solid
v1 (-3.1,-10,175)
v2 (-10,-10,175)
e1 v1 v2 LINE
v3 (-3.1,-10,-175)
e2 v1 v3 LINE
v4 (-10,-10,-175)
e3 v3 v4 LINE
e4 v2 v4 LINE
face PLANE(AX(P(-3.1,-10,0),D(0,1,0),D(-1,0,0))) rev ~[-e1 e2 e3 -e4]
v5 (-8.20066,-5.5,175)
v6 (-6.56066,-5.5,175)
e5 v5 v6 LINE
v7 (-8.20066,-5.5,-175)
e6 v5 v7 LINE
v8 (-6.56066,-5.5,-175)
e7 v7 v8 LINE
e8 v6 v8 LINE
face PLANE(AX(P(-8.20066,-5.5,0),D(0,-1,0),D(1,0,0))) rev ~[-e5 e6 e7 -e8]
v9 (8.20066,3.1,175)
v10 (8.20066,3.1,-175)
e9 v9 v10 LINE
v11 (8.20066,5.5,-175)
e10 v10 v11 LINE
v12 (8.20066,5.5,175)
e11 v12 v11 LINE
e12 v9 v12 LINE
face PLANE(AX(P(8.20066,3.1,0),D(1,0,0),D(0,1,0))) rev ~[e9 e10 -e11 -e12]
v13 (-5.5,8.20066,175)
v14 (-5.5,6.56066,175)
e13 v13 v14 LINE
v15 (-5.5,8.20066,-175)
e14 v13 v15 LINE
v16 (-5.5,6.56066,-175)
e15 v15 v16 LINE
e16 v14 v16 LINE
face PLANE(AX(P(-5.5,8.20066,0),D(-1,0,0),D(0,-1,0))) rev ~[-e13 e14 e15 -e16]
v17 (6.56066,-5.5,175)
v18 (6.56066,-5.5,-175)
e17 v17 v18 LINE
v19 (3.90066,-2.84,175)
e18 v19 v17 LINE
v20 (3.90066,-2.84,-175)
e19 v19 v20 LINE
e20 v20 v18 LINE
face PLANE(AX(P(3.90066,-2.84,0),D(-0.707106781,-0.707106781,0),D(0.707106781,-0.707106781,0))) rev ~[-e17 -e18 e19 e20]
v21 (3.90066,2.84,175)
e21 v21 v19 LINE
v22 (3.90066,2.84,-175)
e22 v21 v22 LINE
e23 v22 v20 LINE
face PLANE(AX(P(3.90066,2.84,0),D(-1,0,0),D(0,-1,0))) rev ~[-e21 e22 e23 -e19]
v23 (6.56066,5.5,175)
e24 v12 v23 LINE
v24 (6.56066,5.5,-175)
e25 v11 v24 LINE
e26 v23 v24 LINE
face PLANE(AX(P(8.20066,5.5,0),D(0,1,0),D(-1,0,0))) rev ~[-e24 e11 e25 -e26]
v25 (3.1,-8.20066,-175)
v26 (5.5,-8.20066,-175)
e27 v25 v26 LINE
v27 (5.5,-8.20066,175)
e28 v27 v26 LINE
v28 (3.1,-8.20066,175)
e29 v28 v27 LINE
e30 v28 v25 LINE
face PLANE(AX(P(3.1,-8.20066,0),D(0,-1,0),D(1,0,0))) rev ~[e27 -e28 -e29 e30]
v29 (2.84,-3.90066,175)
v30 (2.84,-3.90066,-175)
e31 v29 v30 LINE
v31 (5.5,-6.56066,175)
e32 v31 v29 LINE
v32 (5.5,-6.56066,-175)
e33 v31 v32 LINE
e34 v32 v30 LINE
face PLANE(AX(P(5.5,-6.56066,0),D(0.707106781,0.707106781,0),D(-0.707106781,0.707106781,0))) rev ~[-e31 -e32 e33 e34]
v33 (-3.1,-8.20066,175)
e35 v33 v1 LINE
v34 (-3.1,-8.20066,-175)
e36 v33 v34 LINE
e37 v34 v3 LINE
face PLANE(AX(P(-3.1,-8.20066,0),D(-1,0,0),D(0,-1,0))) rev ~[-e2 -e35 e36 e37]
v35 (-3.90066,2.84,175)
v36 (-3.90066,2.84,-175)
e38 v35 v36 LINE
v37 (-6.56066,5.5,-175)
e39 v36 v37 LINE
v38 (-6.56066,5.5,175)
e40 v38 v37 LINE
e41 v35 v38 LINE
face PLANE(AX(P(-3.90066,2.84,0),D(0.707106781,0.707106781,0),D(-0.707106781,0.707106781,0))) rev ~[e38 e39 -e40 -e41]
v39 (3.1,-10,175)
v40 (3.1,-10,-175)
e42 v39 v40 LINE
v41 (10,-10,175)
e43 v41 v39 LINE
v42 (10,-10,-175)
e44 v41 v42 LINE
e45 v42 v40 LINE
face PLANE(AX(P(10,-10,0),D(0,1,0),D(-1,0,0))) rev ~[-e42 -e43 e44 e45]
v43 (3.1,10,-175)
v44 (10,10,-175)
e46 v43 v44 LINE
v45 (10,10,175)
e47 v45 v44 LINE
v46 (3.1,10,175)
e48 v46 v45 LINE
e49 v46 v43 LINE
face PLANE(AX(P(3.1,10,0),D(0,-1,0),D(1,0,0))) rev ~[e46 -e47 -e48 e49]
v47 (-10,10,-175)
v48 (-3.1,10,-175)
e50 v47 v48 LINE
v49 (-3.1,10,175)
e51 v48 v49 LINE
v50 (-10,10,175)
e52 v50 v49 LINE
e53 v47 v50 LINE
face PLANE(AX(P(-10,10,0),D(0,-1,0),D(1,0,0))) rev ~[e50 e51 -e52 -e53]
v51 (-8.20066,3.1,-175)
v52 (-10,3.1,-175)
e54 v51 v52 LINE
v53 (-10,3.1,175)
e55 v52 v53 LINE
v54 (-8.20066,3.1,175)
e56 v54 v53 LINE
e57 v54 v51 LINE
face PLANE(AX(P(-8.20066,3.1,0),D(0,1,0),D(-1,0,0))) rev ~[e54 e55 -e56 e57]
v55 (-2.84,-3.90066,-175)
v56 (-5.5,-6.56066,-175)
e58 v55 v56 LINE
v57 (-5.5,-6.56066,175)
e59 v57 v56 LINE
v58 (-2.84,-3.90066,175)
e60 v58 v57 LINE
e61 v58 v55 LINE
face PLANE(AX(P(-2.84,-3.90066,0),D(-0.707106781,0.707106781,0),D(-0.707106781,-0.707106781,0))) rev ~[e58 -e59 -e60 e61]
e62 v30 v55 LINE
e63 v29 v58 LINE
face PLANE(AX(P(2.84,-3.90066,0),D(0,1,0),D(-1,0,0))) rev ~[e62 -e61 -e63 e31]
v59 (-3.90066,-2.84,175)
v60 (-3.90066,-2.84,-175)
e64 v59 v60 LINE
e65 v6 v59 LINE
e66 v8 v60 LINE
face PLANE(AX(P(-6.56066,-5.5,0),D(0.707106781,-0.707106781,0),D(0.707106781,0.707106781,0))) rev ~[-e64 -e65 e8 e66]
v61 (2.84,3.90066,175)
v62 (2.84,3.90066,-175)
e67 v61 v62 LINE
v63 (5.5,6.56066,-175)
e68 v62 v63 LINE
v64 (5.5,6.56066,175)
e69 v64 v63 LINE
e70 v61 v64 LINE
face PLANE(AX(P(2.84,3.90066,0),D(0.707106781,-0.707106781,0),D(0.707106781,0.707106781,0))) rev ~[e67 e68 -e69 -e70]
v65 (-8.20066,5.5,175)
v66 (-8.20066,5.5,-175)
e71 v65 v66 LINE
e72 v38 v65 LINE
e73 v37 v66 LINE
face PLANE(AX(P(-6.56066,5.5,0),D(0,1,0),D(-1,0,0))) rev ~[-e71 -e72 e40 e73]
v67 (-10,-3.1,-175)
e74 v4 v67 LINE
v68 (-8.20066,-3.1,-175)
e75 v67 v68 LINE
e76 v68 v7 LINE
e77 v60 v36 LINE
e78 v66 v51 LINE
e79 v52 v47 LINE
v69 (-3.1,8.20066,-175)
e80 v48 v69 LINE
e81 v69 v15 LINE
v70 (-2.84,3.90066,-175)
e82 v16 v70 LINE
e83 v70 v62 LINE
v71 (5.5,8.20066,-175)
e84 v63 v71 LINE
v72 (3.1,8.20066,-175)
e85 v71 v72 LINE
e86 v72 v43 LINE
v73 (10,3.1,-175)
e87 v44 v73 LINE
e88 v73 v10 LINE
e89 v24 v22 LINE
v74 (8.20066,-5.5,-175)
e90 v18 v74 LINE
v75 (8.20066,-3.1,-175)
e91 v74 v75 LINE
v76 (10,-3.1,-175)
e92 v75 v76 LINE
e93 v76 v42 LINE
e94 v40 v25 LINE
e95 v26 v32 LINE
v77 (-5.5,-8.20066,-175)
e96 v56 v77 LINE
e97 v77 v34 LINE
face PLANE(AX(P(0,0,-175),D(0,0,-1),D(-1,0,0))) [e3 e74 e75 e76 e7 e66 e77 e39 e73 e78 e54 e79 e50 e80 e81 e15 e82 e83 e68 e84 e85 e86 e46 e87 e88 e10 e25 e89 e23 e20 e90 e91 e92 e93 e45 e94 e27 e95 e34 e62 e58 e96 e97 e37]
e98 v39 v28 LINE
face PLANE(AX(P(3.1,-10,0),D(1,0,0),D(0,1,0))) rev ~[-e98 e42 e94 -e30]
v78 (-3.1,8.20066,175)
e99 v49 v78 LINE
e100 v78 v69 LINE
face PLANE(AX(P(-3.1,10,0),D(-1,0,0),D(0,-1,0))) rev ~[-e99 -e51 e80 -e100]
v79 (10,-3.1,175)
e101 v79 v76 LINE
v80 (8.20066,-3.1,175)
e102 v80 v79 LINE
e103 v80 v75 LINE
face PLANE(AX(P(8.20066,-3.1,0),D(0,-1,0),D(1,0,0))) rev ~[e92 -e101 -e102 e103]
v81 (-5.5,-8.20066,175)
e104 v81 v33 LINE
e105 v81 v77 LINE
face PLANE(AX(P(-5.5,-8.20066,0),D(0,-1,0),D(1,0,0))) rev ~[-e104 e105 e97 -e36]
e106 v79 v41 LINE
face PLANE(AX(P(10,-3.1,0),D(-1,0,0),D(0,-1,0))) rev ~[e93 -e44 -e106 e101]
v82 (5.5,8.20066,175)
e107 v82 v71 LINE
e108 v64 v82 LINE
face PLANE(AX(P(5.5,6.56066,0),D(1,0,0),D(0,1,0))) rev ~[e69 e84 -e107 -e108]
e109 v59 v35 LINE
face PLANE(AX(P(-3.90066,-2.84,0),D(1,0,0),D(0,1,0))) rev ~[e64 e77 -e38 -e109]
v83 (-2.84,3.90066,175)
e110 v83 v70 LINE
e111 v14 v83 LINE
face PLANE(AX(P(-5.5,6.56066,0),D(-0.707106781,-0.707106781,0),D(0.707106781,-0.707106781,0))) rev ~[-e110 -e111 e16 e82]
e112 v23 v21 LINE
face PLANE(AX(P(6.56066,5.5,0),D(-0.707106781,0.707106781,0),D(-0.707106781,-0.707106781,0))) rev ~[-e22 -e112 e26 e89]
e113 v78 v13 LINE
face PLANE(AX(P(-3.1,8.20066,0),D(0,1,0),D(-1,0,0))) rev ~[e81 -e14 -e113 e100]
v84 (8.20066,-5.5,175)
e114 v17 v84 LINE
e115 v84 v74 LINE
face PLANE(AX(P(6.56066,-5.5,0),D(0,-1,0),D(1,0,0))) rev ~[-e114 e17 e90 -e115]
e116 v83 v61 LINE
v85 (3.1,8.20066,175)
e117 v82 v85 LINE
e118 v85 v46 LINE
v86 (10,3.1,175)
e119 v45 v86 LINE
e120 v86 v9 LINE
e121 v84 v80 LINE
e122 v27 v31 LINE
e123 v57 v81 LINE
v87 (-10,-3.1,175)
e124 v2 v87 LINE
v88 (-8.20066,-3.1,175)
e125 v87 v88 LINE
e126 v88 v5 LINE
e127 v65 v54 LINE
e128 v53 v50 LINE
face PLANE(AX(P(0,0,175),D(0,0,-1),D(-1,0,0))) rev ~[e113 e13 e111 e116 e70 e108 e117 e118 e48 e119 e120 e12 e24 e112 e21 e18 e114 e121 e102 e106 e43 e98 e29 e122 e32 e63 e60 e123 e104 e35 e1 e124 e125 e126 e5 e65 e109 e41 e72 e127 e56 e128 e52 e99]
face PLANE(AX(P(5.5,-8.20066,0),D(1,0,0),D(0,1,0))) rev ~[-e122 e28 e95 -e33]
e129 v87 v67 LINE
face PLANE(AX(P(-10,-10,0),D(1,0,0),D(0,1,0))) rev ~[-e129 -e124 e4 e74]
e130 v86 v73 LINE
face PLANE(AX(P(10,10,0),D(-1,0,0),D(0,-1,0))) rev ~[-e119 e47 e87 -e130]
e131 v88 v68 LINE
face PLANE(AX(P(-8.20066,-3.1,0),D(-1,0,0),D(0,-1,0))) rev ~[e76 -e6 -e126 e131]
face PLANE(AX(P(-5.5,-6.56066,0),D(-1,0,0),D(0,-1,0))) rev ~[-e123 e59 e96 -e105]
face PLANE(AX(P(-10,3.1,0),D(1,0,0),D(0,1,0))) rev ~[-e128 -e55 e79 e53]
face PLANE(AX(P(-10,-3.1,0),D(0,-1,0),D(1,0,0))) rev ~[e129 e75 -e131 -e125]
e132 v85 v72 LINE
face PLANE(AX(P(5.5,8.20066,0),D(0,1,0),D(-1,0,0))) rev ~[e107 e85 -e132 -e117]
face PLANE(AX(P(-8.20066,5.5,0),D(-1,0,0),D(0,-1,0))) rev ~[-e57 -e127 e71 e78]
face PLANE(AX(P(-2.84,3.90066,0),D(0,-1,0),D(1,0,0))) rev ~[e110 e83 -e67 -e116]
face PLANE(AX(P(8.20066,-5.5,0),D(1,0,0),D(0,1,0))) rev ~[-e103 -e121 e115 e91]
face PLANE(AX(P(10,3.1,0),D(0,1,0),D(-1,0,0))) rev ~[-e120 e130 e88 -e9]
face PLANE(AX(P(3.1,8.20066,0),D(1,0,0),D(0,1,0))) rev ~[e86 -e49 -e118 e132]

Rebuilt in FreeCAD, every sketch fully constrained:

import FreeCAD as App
import Part
import Sketcher

doc = App.newDocument("Part")
body = doc.addObject("PartDesign::Body", "Body")

sketch1 = doc.addObject("Sketcher::SketchObject", "Sketch")
body.addObject(sketch1)
sketch1.AttachmentSupport = (doc.XY_Plane, [""])
sketch1.MapMode = "FlatFace"
sketch1.addGeometry(Part.LineSegment(App.Vector(-3.1, 8.20066, 0), App.Vector(-3.1, 10, 0)), False)
sketch1.addGeometry(Part.LineSegment(App.Vector(-3.1, 10, 0), App.Vector(-10, 10, 0)), False)
sketch1.addGeometry(Part.LineSegment(App.Vector(-10, 10, 0), App.Vector(-10, 3.1, 0)), False)
sketch1.addGeometry(Part.LineSegment(App.Vector(-10, 3.1, 0), App.Vector(-8.20066, 3.1, 0)), False)
sketch1.addGeometry(Part.LineSegment(App.Vector(-8.20066, 3.1, 0), App.Vector(-8.20066, 5.5, 0)), False)
sketch1.addGeometry(Part.LineSegment(App.Vector(-8.20066, 5.5, 0), App.Vector(-6.56066, 5.5, 0)), False)
sketch1.addGeometry(Part.LineSegment(App.Vector(-6.56066, 5.5, 0), App.Vector(-3.90066, 2.84, 0)), False)
sketch1.addGeometry(Part.LineSegment(App.Vector(-3.90066, 2.84, 0), App.Vector(-3.90066, -2.84, 0)), False)
sketch1.addGeometry(Part.LineSegment(App.Vector(-3.90066, -2.84, 0), App.Vector(-6.56066, -5.5, 0)), False)
sketch1.addGeometry(Part.LineSegment(App.Vector(-6.56066, -5.5, 0), App.Vector(-8.20066, -5.5, 0)), False)
sketch1.addGeometry(Part.LineSegment(App.Vector(-8.20066, -5.5, 0), App.Vector(-8.20066, -3.1, 0)), False)
sketch1.addGeometry(Part.LineSegment(App.Vector(-8.20066, -3.1, 0), App.Vector(-10, -3.1, 0)), False)
sketch1.addGeometry(Part.LineSegment(App.Vector(-10, -3.1, 0), App.Vector(-10, -10, 0)), False)
sketch1.addGeometry(Part.LineSegment(App.Vector(-10, -10, 0), App.Vector(-3.1, -10, 0)), False)
sketch1.addGeometry(Part.LineSegment(App.Vector(-3.1, -10, 0), App.Vector(-3.1, -8.20066, 0)), False)
sketch1.addGeometry(Part.LineSegment(App.Vector(-3.1, -8.20066, 0), App.Vector(-5.5, -8.20066, 0)), False)
sketch1.addGeometry(Part.LineSegment(App.Vector(-5.5, -8.20066, 0), App.Vector(-5.5, -6.56066, 0)), False)
sketch1.addGeometry(Part.LineSegment(App.Vector(-5.5, -6.56066, 0), App.Vector(-2.84, -3.90066, 0)), False)
sketch1.addGeometry(Part.LineSegment(App.Vector(-2.84, -3.90066, 0), App.Vector(2.84, -3.90066, 0)), False)
sketch1.addGeometry(Part.LineSegment(App.Vector(2.84, -3.90066, 0), App.Vector(5.5, -6.56066, 0)), False)
sketch1.addGeometry(Part.LineSegment(App.Vector(5.5, -6.56066, 0), App.Vector(5.5, -8.20066, 0)), False)
sketch1.addGeometry(Part.LineSegment(App.Vector(5.5, -8.20066, 0), App.Vector(3.1, -8.20066, 0)), False)
sketch1.addGeometry(Part.LineSegment(App.Vector(3.1, -8.20066, 0), App.Vector(3.1, -10, 0)), False)
sketch1.addGeometry(Part.LineSegment(App.Vector(3.1, -10, 0), App.Vector(10, -10, 0)), False)
sketch1.addGeometry(Part.LineSegment(App.Vector(10, -10, 0), App.Vector(10, -3.1, 0)), False)
sketch1.addGeometry(Part.LineSegment(App.Vector(10, -3.1, 0), App.Vector(8.20066, -3.1, 0)), False)
sketch1.addGeometry(Part.LineSegment(App.Vector(8.20066, -3.1, 0), App.Vector(8.20066, -5.5, 0)), False)
sketch1.addGeometry(Part.LineSegment(App.Vector(8.20066, -5.5, 0), App.Vector(6.56066, -5.5, 0)), False)
sketch1.addGeometry(Part.LineSegment(App.Vector(6.56066, -5.5, 0), App.Vector(3.90066, -2.84, 0)), False)
sketch1.addGeometry(Part.LineSegment(App.Vector(3.90066, -2.84, 0), App.Vector(3.90066, 2.84, 0)), False)
sketch1.addGeometry(Part.LineSegment(App.Vector(3.90066, 2.84, 0), App.Vector(6.56066, 5.5, 0)), False)
sketch1.addGeometry(Part.LineSegment(App.Vector(6.56066, 5.5, 0), App.Vector(8.20066, 5.5, 0)), False)
sketch1.addGeometry(Part.LineSegment(App.Vector(8.20066, 5.5, 0), App.Vector(8.20066, 3.1, 0)), False)
sketch1.addGeometry(Part.LineSegment(App.Vector(8.20066, 3.1, 0), App.Vector(10, 3.1, 0)), False)
sketch1.addGeometry(Part.LineSegment(App.Vector(10, 3.1, 0), App.Vector(10, 10, 0)), False)
sketch1.addGeometry(Part.LineSegment(App.Vector(10, 10, 0), App.Vector(3.1, 10, 0)), False)
sketch1.addGeometry(Part.LineSegment(App.Vector(3.1, 10, 0), App.Vector(3.1, 8.20066, 0)), False)
sketch1.addGeometry(Part.LineSegment(App.Vector(3.1, 8.20066, 0), App.Vector(5.5, 8.20066, 0)), False)
sketch1.addGeometry(Part.LineSegment(App.Vector(5.5, 8.20066, 0), App.Vector(5.5, 6.56066, 0)), False)
sketch1.addGeometry(Part.LineSegment(App.Vector(5.5, 6.56066, 0), App.Vector(2.84, 3.90066, 0)), False)
sketch1.addGeometry(Part.LineSegment(App.Vector(2.84, 3.90066, 0), App.Vector(-2.84, 3.90066, 0)), False)
sketch1.addGeometry(Part.LineSegment(App.Vector(-2.84, 3.90066, 0), App.Vector(-5.5, 6.56066, 0)), False)
sketch1.addGeometry(Part.LineSegment(App.Vector(-5.5, 6.56066, 0), App.Vector(-5.5, 8.20066, 0)), False)
sketch1.addGeometry(Part.LineSegment(App.Vector(-5.5, 8.20066, 0), App.Vector(-3.1, 8.20066, 0)), False)
sketch1.addConstraint(Sketcher.Constraint("Coincident", 0, 2, 1, 1))
sketch1.addConstraint(Sketcher.Constraint("Coincident", 1, 2, 2, 1))
sketch1.addConstraint(Sketcher.Constraint("Coincident", 2, 2, 3, 1))
sketch1.addConstraint(Sketcher.Constraint("Coincident", 3, 2, 4, 1))
sketch1.addConstraint(Sketcher.Constraint("Coincident", 4, 2, 5, 1))
sketch1.addConstraint(Sketcher.Constraint("Coincident", 5, 2, 6, 1))
sketch1.addConstraint(Sketcher.Constraint("Coincident", 6, 2, 7, 1))
sketch1.addConstraint(Sketcher.Constraint("Coincident", 7, 2, 8, 1))
sketch1.addConstraint(Sketcher.Constraint("Coincident", 8, 2, 9, 1))
sketch1.addConstraint(Sketcher.Constraint("Coincident", 9, 2, 10, 1))
sketch1.addConstraint(Sketcher.Constraint("Coincident", 10, 2, 11, 1))
sketch1.addConstraint(Sketcher.Constraint("Coincident", 11, 2, 12, 1))
sketch1.addConstraint(Sketcher.Constraint("Coincident", 12, 2, 13, 1))
sketch1.addConstraint(Sketcher.Constraint("Coincident", 13, 2, 14, 1))
sketch1.addConstraint(Sketcher.Constraint("Coincident", 14, 2, 15, 1))
sketch1.addConstraint(Sketcher.Constraint("Coincident", 15, 2, 16, 1))
sketch1.addConstraint(Sketcher.Constraint("Coincident", 16, 2, 17, 1))
sketch1.addConstraint(Sketcher.Constraint("Coincident", 17, 2, 18, 1))
sketch1.addConstraint(Sketcher.Constraint("Coincident", 18, 2, 19, 1))
sketch1.addConstraint(Sketcher.Constraint("Coincident", 19, 2, 20, 1))
sketch1.addConstraint(Sketcher.Constraint("Coincident", 20, 2, 21, 1))
sketch1.addConstraint(Sketcher.Constraint("Coincident", 21, 2, 22, 1))
sketch1.addConstraint(Sketcher.Constraint("Coincident", 22, 2, 23, 1))
sketch1.addConstraint(Sketcher.Constraint("Coincident", 23, 2, 24, 1))
sketch1.addConstraint(Sketcher.Constraint("Coincident", 24, 2, 25, 1))
sketch1.addConstraint(Sketcher.Constraint("Coincident", 25, 2, 26, 1))
sketch1.addConstraint(Sketcher.Constraint("Coincident", 26, 2, 27, 1))
sketch1.addConstraint(Sketcher.Constraint("Coincident", 27, 2, 28, 1))
sketch1.addConstraint(Sketcher.Constraint("Coincident", 28, 2, 29, 1))
sketch1.addConstraint(Sketcher.Constraint("Coincident", 29, 2, 30, 1))
sketch1.addConstraint(Sketcher.Constraint("Coincident", 30, 2, 31, 1))
sketch1.addConstraint(Sketcher.Constraint("Coincident", 31, 2, 32, 1))
sketch1.addConstraint(Sketcher.Constraint("Coincident", 32, 2, 33, 1))
sketch1.addConstraint(Sketcher.Constraint("Coincident", 33, 2, 34, 1))
sketch1.addConstraint(Sketcher.Constraint("Coincident", 34, 2, 35, 1))
sketch1.addConstraint(Sketcher.Constraint("Coincident", 35, 2, 36, 1))
sketch1.addConstraint(Sketcher.Constraint("Coincident", 36, 2, 37, 1))
sketch1.addConstraint(Sketcher.Constraint("Coincident", 37, 2, 38, 1))
sketch1.addConstraint(Sketcher.Constraint("Coincident", 38, 2, 39, 1))
sketch1.addConstraint(Sketcher.Constraint("Coincident", 39, 2, 40, 1))
sketch1.addConstraint(Sketcher.Constraint("Coincident", 40, 2, 41, 1))
sketch1.addConstraint(Sketcher.Constraint("Coincident", 41, 2, 42, 1))
sketch1.addConstraint(Sketcher.Constraint("Coincident", 42, 2, 43, 1))
sketch1.addConstraint(Sketcher.Constraint("Coincident", 43, 2, 0, 1))
sketch1.addConstraint(Sketcher.Constraint("Vertical", 0))
sketch1.addConstraint(Sketcher.Constraint("Horizontal", 1))
sketch1.addConstraint(Sketcher.Constraint("Vertical", 2))
sketch1.addConstraint(Sketcher.Constraint("Horizontal", 3))
sketch1.addConstraint(Sketcher.Constraint("Vertical", 4))
sketch1.addConstraint(Sketcher.Constraint("Horizontal", 5))
sketch1.addConstraint(Sketcher.Constraint("Vertical", 7))
sketch1.addConstraint(Sketcher.Constraint("Horizontal", 9))
sketch1.addConstraint(Sketcher.Constraint("Vertical", 10))
sketch1.addConstraint(Sketcher.Constraint("Horizontal", 11))
sketch1.addConstraint(Sketcher.Constraint("Vertical", 12))
sketch1.addConstraint(Sketcher.Constraint("Horizontal", 13))
sketch1.addConstraint(Sketcher.Constraint("Vertical", 14))
sketch1.addConstraint(Sketcher.Constraint("Horizontal", 15))
sketch1.addConstraint(Sketcher.Constraint("Vertical", 16))
sketch1.addConstraint(Sketcher.Constraint("Horizontal", 18))
sketch1.addConstraint(Sketcher.Constraint("Vertical", 20))
sketch1.addConstraint(Sketcher.Constraint("Horizontal", 21))
sketch1.addConstraint(Sketcher.Constraint("Vertical", 22))
sketch1.addConstraint(Sketcher.Constraint("Horizontal", 23))
sketch1.addConstraint(Sketcher.Constraint("Vertical", 24))
sketch1.addConstraint(Sketcher.Constraint("Horizontal", 25))
sketch1.addConstraint(Sketcher.Constraint("Vertical", 26))
sketch1.addConstraint(Sketcher.Constraint("Horizontal", 27))
sketch1.addConstraint(Sketcher.Constraint("Vertical", 29))
sketch1.addConstraint(Sketcher.Constraint("Horizontal", 31))
sketch1.addConstraint(Sketcher.Constraint("Vertical", 32))
sketch1.addConstraint(Sketcher.Constraint("Horizontal", 33))
sketch1.addConstraint(Sketcher.Constraint("Vertical", 34))
sketch1.addConstraint(Sketcher.Constraint("Horizontal", 35))
sketch1.addConstraint(Sketcher.Constraint("Vertical", 36))
sketch1.addConstraint(Sketcher.Constraint("Horizontal", 37))
sketch1.addConstraint(Sketcher.Constraint("Vertical", 38))
sketch1.addConstraint(Sketcher.Constraint("Horizontal", 40))
sketch1.addConstraint(Sketcher.Constraint("Vertical", 42))
sketch1.addConstraint(Sketcher.Constraint("Horizontal", 43))
sketch1.addConstraint(Sketcher.Constraint("Symmetric", 0, 2, 22, 2, -1, 1))
sketch1.addConstraint(Sketcher.Constraint("Symmetric", 2, 2, 24, 2, -1, 1))
sketch1.addConstraint(Sketcher.Constraint("Symmetric", 4, 2, 26, 2, -1, 1))
sketch1.addConstraint(Sketcher.Constraint("Symmetric", 6, 2, 28, 2, -1, 1))
sketch1.addConstraint(Sketcher.Constraint("Symmetric", 8, 2, 30, 2, -1, 1))
sketch1.addConstraint(Sketcher.Constraint("Symmetric", 10, 2, 32, 2, -1, 1))
sketch1.addConstraint(Sketcher.Constraint("Symmetric", 12, 2, 34, 2, -1, 1))
sketch1.addConstraint(Sketcher.Constraint("Symmetric", 14, 2, 36, 2, -1, 1))
sketch1.addConstraint(Sketcher.Constraint("Symmetric", 16, 2, 38, 2, -1, 1))
sketch1.addConstraint(Sketcher.Constraint("Symmetric", 17, 2, 39, 2, -1, 1))
sketch1.addConstraint(Sketcher.Constraint("Symmetric", 19, 2, 41, 2, -1, 1))
sketch1.addConstraint(Sketcher.Constraint("Symmetric", 16, 2, 19, 2, -2))
sketch1.addConstraint(Sketcher.Constraint("Symmetric", 14, 2, 21, 2, -2))
sketch1.addConstraint(Sketcher.Constraint("Symmetric", 12, 2, 23, 2, -2))
sketch1.addConstraint(Sketcher.Constraint("Symmetric", 10, 2, 25, 2, -2))
sketch1.addConstraint(Sketcher.Constraint("Symmetric", 8, 2, 27, 2, -2))
sketch1.addConstraint(Sketcher.Constraint("Perpendicular", 6, 8))
sketch1.addConstraint(Sketcher.Constraint("Parallel", 8, 17))
sketch1.addConstraint(Sketcher.Constraint("Perpendicular", 17, 19))
sketch1.addConstraint(Sketcher.Constraint("Parallel", 19, 28))
sketch1.addConstraint(Sketcher.Constraint("Perpendicular", 28, 30))
sketch1.addConstraint(Sketcher.Constraint("Perpendicular", 39, 41))
sketch1.addConstraint(Sketcher.Constraint("Horizontal", 7, 2, 28, 2))
sketch1.addConstraint(Sketcher.Constraint("Horizontal", 37, 2, 42, 2))
sketch1.addConstraint(Sketcher.Constraint("Equal", 33, 0))
sketch1.addConstraint(Sketcher.Constraint("Equal", 35, 2))
sketch1.addConstraint(Sketcher.Constraint("Equal", 43, 4))
sketch1.addConstraint(Sketcher.Constraint("Equal", 40, 7))
sketch1.addConstraint(Sketcher.Constraint("Equal", 31, 16))
sketch1.addConstraint(Sketcher.Constraint("Equal", 8, 17))
sketch1.addConstraint(Sketcher.Constraint("DistanceX", 1, 2, 1, 1, 6.9))
sketch1.addConstraint(Sketcher.Constraint("DistanceX", 15, 2, 15, 1, 2.4))
sketch1.addConstraint(Sketcher.Constraint("DistanceY", -1, 1, 0, 2, 10.0))
sketch1.addConstraint(Sketcher.Constraint("DistanceX", 5, 1, 5, 2, 1.64))
sketch1.addConstraint(Sketcher.Constraint("DistanceX", 18, 1, 18, 2, 5.68))
sketch1.addConstraint(Sketcher.Constraint("DistanceX", 3, 1, 3, 2, 1.79934))
pad1 = doc.addObject("PartDesign::Pad", "Pad")
body.addObject(pad1)
pad1.Profile = sketch1
pad1.Length = 350
pad1.Midplane = True

doc.recompute()
